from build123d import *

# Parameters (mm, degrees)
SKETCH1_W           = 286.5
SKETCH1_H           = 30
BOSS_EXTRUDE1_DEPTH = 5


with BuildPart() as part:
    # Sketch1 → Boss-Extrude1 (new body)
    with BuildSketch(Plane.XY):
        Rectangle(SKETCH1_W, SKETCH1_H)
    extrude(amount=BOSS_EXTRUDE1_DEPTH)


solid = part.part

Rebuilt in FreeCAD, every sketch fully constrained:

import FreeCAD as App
import Part
import Sketcher

V = App.Vector


def add_polygon(sketch, points):
    """Adds a closed chain of lines whose ends are joined by coincident constraints."""
    first, n = sketch.GeometryCount, len(points)
    for a, b in zip(points, points[1:] + points[:1]):
        sketch.addGeometry(Part.LineSegment(App.Vector(*a, 0), App.Vector(*b, 0)), False)
    for i in range(n):
        sketch.addConstraint(Sketcher.Constraint("Coincident", first + i, 2, first + (i + 1) % n, 1))

doc = App.newDocument("Part")
body = doc.addObject("PartDesign::Body", "Body")

# Sketch on XY plane
sketch1 = body.newObject("Sketcher::SketchObject", "Sketch")
sketch1.AttachmentSupport = (doc.getObject("XY_Plane"), [""])
sketch1.MapMode = "FlatFace"
add_polygon(sketch1, [(-143, 15), (-143, -15), (143, -15), (143, 15)])  # lines 0-3
sketch1.addConstraint(Sketcher.Constraint("Vertical", 0))
sketch1.addConstraint(Sketcher.Constraint("Horizontal", 1))
sketch1.addConstraint(Sketcher.Constraint("Vertical", 2))
sketch1.addConstraint(Sketcher.Constraint("Horizontal", 3))
sketch1.addConstraint(Sketcher.Constraint("Symmetric", 0, 2, 2, 2, -1, 1))
sketch1.addConstraint(Sketcher.Constraint("DistanceY", 0, 2, 0, 1, 30.0))
sketch1.addConstraint(Sketcher.Constraint("DistanceX", 1, 1, 1, 2, 286.5))
pad1 = body.newObject("PartDesign::Pad", "Pad")
pad1.Profile = sketch1
pad1.Length = 5

doc.recompute()
